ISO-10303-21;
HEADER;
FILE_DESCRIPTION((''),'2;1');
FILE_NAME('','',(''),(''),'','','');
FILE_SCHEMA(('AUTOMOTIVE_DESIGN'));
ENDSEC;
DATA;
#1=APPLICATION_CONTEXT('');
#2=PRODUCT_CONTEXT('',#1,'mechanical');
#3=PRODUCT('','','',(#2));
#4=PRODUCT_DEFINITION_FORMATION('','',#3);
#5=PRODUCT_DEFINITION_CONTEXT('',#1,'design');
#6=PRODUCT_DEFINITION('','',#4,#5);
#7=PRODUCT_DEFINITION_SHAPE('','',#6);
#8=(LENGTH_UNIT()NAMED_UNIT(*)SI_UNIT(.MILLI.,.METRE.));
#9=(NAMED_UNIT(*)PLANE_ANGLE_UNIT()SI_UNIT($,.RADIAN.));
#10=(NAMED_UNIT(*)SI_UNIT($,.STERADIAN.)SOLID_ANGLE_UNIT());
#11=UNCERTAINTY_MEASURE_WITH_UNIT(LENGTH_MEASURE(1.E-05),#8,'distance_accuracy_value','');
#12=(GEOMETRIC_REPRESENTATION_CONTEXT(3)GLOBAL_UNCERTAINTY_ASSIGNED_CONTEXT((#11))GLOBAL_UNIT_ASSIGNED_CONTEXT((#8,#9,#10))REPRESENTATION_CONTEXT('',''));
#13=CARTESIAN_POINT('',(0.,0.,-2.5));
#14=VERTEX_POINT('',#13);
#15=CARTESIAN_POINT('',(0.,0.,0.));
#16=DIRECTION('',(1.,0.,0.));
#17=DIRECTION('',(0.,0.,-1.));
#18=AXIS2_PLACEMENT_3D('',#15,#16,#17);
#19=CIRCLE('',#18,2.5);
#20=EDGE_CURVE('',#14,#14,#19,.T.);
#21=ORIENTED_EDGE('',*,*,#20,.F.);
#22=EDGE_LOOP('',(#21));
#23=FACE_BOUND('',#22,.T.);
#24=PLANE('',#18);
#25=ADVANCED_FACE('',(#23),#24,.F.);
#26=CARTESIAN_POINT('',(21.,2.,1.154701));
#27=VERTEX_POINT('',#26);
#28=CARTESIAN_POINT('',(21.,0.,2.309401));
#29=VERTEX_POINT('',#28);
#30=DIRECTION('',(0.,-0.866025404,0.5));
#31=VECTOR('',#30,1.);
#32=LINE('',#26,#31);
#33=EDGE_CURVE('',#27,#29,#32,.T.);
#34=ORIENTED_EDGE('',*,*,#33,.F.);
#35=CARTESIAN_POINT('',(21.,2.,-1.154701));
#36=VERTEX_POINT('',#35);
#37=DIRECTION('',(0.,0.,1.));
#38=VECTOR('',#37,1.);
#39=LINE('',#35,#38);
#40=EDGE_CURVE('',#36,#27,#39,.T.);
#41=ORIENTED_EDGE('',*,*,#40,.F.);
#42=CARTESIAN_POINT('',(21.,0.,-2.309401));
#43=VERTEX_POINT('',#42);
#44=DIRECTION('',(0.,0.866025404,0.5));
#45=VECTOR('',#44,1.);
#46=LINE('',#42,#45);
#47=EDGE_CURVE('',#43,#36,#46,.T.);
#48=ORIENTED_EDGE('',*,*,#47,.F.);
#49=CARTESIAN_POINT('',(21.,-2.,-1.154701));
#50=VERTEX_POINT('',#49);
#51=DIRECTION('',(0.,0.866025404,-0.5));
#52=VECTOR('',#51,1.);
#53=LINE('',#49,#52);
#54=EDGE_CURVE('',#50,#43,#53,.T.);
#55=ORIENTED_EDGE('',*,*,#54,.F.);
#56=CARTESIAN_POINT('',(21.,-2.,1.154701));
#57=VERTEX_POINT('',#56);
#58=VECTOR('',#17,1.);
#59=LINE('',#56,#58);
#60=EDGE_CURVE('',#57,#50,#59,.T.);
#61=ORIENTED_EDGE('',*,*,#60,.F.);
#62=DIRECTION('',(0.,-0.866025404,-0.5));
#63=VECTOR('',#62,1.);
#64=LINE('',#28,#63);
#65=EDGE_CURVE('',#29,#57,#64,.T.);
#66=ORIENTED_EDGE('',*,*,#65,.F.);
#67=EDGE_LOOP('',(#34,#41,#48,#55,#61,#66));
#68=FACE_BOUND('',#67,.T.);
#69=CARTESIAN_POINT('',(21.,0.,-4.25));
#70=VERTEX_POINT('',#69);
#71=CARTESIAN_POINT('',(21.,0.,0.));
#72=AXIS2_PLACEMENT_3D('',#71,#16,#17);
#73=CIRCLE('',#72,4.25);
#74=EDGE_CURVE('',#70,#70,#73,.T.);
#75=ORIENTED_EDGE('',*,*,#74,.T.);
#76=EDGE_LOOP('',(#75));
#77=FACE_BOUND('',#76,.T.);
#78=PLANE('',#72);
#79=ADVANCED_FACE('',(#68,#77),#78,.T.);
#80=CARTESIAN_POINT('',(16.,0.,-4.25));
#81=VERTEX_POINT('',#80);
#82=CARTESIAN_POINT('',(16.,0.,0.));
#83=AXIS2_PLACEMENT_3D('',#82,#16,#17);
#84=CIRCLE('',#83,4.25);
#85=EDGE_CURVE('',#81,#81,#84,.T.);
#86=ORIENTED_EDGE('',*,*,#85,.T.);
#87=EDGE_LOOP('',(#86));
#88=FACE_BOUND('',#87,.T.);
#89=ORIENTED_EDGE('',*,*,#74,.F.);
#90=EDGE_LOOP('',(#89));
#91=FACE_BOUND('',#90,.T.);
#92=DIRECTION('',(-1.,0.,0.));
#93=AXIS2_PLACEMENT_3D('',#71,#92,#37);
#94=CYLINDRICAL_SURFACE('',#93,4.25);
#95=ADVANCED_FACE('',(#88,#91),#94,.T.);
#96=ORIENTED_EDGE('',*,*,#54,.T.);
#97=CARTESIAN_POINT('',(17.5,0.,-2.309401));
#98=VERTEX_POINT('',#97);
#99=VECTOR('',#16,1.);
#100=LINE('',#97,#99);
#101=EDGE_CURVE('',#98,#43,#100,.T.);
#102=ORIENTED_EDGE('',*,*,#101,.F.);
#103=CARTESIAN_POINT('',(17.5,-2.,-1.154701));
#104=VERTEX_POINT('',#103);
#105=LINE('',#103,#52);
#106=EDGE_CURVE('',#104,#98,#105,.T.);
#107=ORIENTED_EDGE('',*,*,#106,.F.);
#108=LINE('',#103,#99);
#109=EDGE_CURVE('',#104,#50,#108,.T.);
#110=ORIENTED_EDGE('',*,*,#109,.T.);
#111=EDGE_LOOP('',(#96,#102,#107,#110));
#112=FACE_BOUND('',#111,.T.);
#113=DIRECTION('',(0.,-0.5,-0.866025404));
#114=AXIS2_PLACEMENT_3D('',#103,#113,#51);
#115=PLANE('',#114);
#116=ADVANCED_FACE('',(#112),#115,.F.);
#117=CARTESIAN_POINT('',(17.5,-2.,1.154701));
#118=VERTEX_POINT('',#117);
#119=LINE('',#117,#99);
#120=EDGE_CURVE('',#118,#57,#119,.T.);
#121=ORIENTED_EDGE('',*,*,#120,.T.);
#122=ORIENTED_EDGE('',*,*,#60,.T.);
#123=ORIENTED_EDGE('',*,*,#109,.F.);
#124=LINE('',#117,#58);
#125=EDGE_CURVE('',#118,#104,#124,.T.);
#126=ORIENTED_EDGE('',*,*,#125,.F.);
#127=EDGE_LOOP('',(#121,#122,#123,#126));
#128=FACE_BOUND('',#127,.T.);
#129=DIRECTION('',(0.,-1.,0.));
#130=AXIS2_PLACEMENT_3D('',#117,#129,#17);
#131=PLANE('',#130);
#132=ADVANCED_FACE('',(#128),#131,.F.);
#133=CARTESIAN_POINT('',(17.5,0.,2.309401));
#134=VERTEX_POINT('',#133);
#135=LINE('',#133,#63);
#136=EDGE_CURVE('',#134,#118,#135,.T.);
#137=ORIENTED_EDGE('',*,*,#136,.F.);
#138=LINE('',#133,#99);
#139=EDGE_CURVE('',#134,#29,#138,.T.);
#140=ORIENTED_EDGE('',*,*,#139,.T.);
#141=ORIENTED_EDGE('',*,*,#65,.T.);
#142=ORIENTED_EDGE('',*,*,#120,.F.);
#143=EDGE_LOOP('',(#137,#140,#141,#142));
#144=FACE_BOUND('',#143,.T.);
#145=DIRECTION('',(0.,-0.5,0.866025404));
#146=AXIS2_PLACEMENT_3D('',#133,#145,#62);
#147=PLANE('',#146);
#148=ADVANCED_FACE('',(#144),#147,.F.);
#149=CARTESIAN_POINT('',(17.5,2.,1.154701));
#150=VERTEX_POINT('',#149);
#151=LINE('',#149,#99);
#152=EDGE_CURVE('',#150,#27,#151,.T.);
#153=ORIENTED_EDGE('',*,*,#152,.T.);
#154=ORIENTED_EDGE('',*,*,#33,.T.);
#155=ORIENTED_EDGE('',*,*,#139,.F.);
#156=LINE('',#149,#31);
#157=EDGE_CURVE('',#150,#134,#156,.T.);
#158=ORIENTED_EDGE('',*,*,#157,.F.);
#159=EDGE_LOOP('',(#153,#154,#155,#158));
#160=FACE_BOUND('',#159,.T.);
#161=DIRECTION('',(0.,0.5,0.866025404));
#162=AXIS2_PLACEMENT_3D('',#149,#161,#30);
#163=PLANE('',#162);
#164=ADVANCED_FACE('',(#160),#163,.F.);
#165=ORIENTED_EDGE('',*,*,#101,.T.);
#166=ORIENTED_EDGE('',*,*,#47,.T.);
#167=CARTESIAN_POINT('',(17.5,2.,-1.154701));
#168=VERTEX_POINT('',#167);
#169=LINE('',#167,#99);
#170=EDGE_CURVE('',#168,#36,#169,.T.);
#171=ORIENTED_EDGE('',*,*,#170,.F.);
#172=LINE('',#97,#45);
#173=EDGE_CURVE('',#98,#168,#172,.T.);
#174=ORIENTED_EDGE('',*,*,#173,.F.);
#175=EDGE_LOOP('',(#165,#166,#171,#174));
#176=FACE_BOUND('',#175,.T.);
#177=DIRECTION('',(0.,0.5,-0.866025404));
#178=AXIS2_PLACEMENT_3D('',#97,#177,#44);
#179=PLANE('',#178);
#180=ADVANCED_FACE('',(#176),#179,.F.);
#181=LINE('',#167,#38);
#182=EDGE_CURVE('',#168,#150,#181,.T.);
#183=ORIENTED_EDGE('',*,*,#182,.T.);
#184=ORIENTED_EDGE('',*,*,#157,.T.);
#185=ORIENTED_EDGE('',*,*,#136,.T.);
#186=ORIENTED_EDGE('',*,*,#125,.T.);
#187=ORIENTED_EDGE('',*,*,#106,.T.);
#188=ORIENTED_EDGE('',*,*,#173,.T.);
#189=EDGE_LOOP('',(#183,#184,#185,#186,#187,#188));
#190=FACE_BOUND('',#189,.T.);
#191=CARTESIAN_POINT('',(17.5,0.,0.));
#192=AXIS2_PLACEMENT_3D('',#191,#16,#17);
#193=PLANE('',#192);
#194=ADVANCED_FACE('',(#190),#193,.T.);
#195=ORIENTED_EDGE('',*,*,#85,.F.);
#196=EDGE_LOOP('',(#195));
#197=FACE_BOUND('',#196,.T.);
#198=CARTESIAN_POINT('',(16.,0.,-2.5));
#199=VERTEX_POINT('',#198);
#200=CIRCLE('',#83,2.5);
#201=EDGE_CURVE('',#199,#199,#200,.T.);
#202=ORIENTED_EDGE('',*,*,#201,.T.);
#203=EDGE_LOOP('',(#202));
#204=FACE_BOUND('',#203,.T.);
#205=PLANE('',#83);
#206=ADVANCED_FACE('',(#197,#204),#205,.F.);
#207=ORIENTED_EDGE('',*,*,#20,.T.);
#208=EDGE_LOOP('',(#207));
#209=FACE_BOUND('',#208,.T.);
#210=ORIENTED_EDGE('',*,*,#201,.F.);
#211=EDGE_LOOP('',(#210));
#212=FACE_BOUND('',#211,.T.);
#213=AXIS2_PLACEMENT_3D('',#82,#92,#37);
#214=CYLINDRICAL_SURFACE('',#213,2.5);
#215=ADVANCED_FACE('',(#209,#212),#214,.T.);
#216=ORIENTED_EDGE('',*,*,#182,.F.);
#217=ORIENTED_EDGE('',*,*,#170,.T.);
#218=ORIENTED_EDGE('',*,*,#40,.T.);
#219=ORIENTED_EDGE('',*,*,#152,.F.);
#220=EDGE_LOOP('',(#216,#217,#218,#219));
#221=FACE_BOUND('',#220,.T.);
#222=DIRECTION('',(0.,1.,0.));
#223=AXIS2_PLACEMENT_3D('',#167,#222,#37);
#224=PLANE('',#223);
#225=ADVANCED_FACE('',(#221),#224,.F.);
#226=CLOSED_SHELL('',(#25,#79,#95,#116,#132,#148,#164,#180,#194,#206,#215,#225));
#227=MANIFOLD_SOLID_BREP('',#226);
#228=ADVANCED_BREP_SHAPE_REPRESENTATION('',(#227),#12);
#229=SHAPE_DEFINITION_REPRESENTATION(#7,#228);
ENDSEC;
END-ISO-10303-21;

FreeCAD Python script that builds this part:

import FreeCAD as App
import Part
import Sketcher

V = App.Vector
Q = App.Units.Quantity

doc = App.newDocument("Part")
params = doc.addObject("Spreadsheet::Sheet", "Params")
for row, (alias, value) in enumerate([
    ("sketch1_diameter", "5 mm"),
    ("pad1_length", "16 mm"),
    ("sketch2_diameter", "8.5 mm"),
    ("pad2_length", "5 mm"),
    ("pocket1_length", "3.5 mm"),
], start=1):
    params.set(f"A{row}", alias)
    params.set(f"B{row}", "=" + value)
    params.setAlias(f"B{row}", alias)

body = doc.addObject("PartDesign::Body", "Body")

# Sketch on YZ plane
sketch1 = body.newObject("Sketcher::SketchObject", "Sketch")
sketch1.AttachmentSupport = (doc.getObject("YZ_Plane"), [""])
sketch1.MapMode = "FlatFace"
sketch1.addGeometry(Part.Circle(V(0, 0, 0), V(0, 0, 1), 2.5), False)
sketch1.addConstraint([
    Sketcher.Constraint("Coincident", 0, 3, -1, 1),
    Sketcher.Constraint("Diameter", 0, 5.0),
])
sketch1.setExpression("Constraints[1]", "Params.sketch1_diameter")
pad1 = body.newObject("PartDesign::Pad", "Pad")
pad1.Profile = sketch1
pad1.setExpression("Length", "Params.pad1_length")

# Sketch on YZ plane
sketch2 = body.newObject("Sketcher::SketchObject", "Sketch001")
sketch2.AttachmentSupport = (doc.getObject("YZ_Plane"), [""])
sketch2.MapMode = "FlatFace"
sketch2.AttachmentOffset = App.Placement(V(0, 0, 16), App.Rotation())
sketch2.addGeometry(Part.Circle(V(0, 0, 0), V(0, 0, 1), 4.2), False)
sketch2.addConstraint([
    Sketcher.Constraint("Coincident", 0, 3, -1, 1),
    Sketcher.Constraint("Diameter", 0, 8.5),
])
sketch2.setExpression("Constraints[1]", "Params.sketch2_diameter")
pad2 = body.newObject("PartDesign::Pad", "Pad001")
pad2.Profile = sketch2
pad2.setExpression("Length", "Params.pad2_length")

# Sketch on YZ plane
sketch3 = body.newObject("Sketcher::SketchObject", "Sketch002")
sketch3.AttachmentSupport = (doc.getObject("YZ_Plane"), [""])
sketch3.MapMode = "FlatFace"
sketch3.AttachmentOffset = App.Placement(V(0, 0, 21), App.Rotation())
sketch3.addGeometry([
    Part.LineSegment(V(0, -2.3, 0), V(2, -1.2, 0)),  # 0
    Part.LineSegment(V(2, -1.2, 0), V(2, 1.2, 0)),  # 1
    Part.LineSegment(V(2, 1.2, 0), V(0, 2.3, 0)),  # 2
    Part.LineSegment(V(0, 2.3, 0), V(-2, 1.2, 0)),  # 3
    Part.LineSegment(V(-2, 1.2, 0), V(-2, -1.2, 0)),  # 4
    Part.LineSegment(V(-2, -1.2, 0), V(0, -2.3, 0)),  # 5
], False)
sketch3.addConstraint([
    Sketcher.Constraint("Coincident", 0, 2, 1, 1),
    Sketcher.Constraint("Coincident", 1, 2, 2, 1),
    Sketcher.Constraint("Coincident", 2, 2, 3, 1),
    Sketcher.Constraint("Coincident", 3, 2, 4, 1),
    Sketcher.Constraint("Coincident", 4, 2, 5, 1),
    Sketcher.Constraint("Coincident", 5, 2, 0, 1),
    Sketcher.Constraint("Vertical", 1),
    Sketcher.Constraint("Vertical", 4),
    Sketcher.Constraint("Symmetric", 0, 2, 3, 2, -1, 1),
    Sketcher.Constraint("Symmetric", 2, 2, 5, 2, -1, 1),
    Sketcher.Constraint("PointOnObject", 2, 2, -2),
    Sketcher.Constraint("Parallel", 2, 5),
    Sketcher.Constraint("Horizontal", 1, 2, 3, 2),
    Sketcher.Constraint("Angle", 0, Q("30 deg")),
    Sketcher.Constraint("DistanceX", -1, 1, 0, 2, 2.0),
    Sketcher.Constraint("DistanceY", 1, 1, 1, 2, 2.309401),
])
pocket1 = body.newObject("PartDesign::Pocket", "Pocket")
pocket1.Profile = sketch3
pocket1.setExpression("Length", "Params.pocket1_length")

doc.recompute()
